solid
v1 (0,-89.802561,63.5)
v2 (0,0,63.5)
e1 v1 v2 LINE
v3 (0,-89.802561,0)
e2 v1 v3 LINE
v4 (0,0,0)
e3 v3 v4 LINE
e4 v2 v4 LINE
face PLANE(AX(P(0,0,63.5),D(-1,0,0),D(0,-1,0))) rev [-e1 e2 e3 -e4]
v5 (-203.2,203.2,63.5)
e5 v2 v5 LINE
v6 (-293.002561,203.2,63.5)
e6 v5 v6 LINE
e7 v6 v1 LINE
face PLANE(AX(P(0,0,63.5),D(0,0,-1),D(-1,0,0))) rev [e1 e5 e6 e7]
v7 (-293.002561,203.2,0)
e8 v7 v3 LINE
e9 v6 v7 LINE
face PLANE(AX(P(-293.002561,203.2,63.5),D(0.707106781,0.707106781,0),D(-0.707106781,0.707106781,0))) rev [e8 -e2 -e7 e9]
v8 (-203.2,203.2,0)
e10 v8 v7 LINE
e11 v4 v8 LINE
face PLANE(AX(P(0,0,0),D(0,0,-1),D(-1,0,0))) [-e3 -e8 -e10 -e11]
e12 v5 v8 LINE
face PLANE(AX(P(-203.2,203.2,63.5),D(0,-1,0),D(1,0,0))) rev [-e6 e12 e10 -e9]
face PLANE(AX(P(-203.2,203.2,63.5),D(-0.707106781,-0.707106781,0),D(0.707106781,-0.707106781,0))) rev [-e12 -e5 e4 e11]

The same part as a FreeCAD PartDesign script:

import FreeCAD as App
import Part
import Sketcher

V = App.Vector
Q = App.Units.Quantity

doc = App.newDocument("Part")
body = doc.addObject("PartDesign::Body", "Body")

# Sketch on XY plane
sketch1 = body.newObject("Sketcher::SketchObject", "Sketch")
sketch1.AttachmentSupport = (doc.getObject("XY_Plane"), [""])
sketch1.MapMode = "FlatFace"
sketch1.addGeometry([
    Part.LineSegment(V(0, 0, 0), V(-203.2, 203.2, 0)),
    Part.LineSegment(V(-203.2, 203.2, 0), V(-293.002561, 203.2, 0)),
    Part.LineSegment(V(-293.002561, 203.2, 0), V(0, -89.802561, 0)),
    Part.LineSegment(V(0, -89.802561, 0), V(0, 0, 0)),
], False)
sketch1.addConstraint([
    Sketcher.Constraint("Coincident", 0, 2, 1, 1),
    Sketcher.Constraint("Coincident", 1, 2, 2, 1),
    Sketcher.Constraint("Coincident", 2, 2, 3, 1),
    Sketcher.Constraint("Coincident", 3, 2, 0, 1),
    Sketcher.Constraint("Horizontal", 1),
    Sketcher.Constraint("Vertical", 3),
    Sketcher.Constraint("Coincident", 3, 2, -1, 1),
    Sketcher.Constraint("Parallel", 0, 2),
    Sketcher.Constraint("Equal", 1, 3),
    Sketcher.Constraint("DistanceX", 0, 2, -1, 1, Q("8 in")),
    Sketcher.Constraint("DistanceX", 1, 2, 1, 1, 89.802561),
])
pad1 = body.newObject("PartDesign::Pad", "Pad")
pad1.Profile = sketch1
pad1.Length = Q("2.5 in")

doc.recompute()
